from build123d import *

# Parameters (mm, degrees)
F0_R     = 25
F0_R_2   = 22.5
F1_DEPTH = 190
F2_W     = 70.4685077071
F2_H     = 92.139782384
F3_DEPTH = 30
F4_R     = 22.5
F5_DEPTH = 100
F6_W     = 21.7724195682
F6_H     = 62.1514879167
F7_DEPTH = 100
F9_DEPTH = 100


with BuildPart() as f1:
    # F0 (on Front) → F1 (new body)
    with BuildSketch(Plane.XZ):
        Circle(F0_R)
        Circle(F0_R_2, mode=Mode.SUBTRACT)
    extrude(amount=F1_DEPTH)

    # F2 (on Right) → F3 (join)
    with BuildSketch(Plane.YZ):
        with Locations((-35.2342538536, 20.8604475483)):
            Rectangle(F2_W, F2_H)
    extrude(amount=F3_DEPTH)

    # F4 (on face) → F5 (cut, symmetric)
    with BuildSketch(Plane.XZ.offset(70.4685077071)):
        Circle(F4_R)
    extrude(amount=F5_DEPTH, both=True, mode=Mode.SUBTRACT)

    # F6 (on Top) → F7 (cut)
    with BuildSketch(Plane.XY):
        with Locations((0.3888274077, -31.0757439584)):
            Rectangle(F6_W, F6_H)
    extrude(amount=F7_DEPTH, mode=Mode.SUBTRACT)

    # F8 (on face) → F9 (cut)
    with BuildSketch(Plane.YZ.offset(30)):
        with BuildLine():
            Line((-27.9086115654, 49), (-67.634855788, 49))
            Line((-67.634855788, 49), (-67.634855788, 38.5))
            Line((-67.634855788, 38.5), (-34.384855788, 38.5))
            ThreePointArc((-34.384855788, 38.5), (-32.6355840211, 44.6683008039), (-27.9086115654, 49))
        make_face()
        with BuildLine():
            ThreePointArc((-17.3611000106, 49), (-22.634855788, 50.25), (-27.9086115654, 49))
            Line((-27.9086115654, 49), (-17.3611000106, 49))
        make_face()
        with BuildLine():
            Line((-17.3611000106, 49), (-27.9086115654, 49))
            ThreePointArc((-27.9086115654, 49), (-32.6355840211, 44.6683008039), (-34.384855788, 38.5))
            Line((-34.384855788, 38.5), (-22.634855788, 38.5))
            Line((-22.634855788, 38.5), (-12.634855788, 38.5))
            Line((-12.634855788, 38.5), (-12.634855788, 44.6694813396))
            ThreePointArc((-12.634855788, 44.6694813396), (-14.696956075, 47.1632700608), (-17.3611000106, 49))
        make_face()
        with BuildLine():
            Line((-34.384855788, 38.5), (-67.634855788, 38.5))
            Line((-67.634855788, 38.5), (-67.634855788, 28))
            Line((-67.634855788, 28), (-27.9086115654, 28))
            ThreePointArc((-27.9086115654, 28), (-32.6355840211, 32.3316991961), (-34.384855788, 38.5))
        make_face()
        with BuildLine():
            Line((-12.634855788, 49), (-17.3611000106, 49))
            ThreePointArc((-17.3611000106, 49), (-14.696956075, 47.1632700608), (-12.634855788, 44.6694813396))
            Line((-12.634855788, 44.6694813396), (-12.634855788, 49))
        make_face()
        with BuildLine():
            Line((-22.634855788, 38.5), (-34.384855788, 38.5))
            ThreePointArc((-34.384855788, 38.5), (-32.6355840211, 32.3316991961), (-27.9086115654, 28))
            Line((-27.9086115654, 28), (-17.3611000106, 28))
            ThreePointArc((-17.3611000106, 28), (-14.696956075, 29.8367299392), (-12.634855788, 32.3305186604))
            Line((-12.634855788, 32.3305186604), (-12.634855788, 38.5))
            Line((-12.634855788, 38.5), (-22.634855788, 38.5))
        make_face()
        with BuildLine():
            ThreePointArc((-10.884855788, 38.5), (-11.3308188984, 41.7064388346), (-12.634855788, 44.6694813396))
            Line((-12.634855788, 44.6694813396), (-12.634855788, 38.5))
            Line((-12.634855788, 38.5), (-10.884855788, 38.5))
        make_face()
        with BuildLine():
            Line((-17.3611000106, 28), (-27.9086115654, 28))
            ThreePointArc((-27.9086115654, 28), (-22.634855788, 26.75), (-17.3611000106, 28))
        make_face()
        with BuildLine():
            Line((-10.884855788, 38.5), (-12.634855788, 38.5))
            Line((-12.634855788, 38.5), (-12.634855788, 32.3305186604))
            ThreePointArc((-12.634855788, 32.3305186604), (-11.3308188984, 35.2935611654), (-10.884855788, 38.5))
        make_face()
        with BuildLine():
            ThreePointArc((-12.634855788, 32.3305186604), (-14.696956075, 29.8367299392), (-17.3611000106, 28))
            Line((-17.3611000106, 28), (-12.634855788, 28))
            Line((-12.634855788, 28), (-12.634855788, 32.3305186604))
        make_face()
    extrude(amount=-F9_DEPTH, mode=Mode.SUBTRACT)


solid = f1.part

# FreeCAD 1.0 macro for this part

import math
import FreeCAD as App
import Part
import Sketcher
Q = App.Units.Quantity


def add_polygon(sketch, points):
    """Adds a closed chain of lines whose ends are joined by coincident constraints."""
    first, n = sketch.GeometryCount, len(points)
    for a, b in zip(points, points[1:] + points[:1]):
        sketch.addGeometry(Part.LineSegment(App.Vector(*a, 0), App.Vector(*b, 0)), False)
    for i in range(n):
        sketch.addConstraint(Sketcher.Constraint("Coincident", first + i, 2, first + (i + 1) % n, 1))

doc = App.newDocument("Part")
params = doc.addObject("Spreadsheet::Sheet", "Params")
for row, (alias, value) in enumerate([
    ("sketch1_diameter", "50 mm"),
    ("sketch1_diameter2", "45 mm"),
    ("pad1_length", "190 mm"),
    ("pad2_length", "30 mm"),
    ("sketch3_diameter", "45 mm"),
    ("pocket1_length", "200 mm"),
    ("pocket2_length", "100 mm"),
    ("sketch5_height", "21 mm"),
    ("sketch5_radius", "11.75 mm"),
    ("pocket3_length", "100 mm"),
], start=1):
    params.set(f"A{row}", alias)
    params.set(f"B{row}", "=" + value)
    params.setAlias(f"B{row}", alias)

body = doc.addObject("PartDesign::Body", "Body")

sketch1 = body.newObject("Sketcher::SketchObject", "Sketch")
sketch1.AttachmentSupport = (doc.getObject("XZ_Plane"), [""])
sketch1.MapMode = "FlatFace"
sketch1.addGeometry(Part.Circle(App.Vector(0, 0, 0), App.Vector(0, 0, 1), 25), False)
sketch1.addGeometry(Part.Circle(App.Vector(0, 0, 0), App.Vector(0, 0, 1), 22), False)
sketch1.addConstraint(Sketcher.Constraint("Coincident", 0, 3, -1, 1))
sketch1.addConstraint(Sketcher.Constraint("Coincident", 1, 3, -1, 1))
sketch1.addConstraint(Sketcher.Constraint("Diameter", 0, Q("50 mm")))
sketch1.addConstraint(Sketcher.Constraint("Diameter", 1, Q("45 mm")))
sketch1.setExpression("Constraints[2]", "Params.sketch1_diameter")
sketch1.setExpression("Constraints[3]", "Params.sketch1_diameter2")
pad1 = body.newObject("PartDesign::Pad", "Pad")
pad1.Profile = sketch1
pad1.setExpression("Length", "Params.pad1_length")

sketch2 = body.newObject("Sketcher::SketchObject", "Sketch001")
sketch2.AttachmentSupport = (doc.getObject("YZ_Plane"), [""])
sketch2.MapMode = "FlatFace"
add_polygon(sketch2, [(-70, 67), (-70, -25), (0, -25), (0, 67)])
sketch2.addConstraint(Sketcher.Constraint("Vertical", 0))
sketch2.addConstraint(Sketcher.Constraint("Horizontal", 1))
sketch2.addConstraint(Sketcher.Constraint("Vertical", 2))
sketch2.addConstraint(Sketcher.Constraint("Horizontal", 3))
sketch2.addConstraint(Sketcher.Constraint("PointOnObject", 1, 2, -2))
sketch2.addConstraint(Sketcher.Constraint("DistanceX", 1, 1, 1, 2, Q("70.468508 mm")))
sketch2.addConstraint(Sketcher.Constraint("DistanceY", 0, 2, 0, 1, Q("92.139782 mm")))
sketch2.addConstraint(Sketcher.Constraint("DistanceY", -1, 1, 2, 2, Q("66.930339 mm")))
pad2 = body.newObject("PartDesign::Pad", "Pad001")
pad2.Profile = sketch2
pad2.setExpression("Length", "Params.pad2_length")

sketch3 = body.newObject("Sketcher::SketchObject", "Sketch002")
sketch3.AttachmentSupport = (doc.getObject("XZ_Plane"), [""])
sketch3.MapMode = "FlatFace"
sketch3.AttachmentOffset = App.Placement(App.Vector(0, 0, 70.468508), App.Rotation())
sketch3.addGeometry(Part.Circle(App.Vector(0, 0, 0), App.Vector(0, 0, 1), 22), False)
sketch3.addConstraint(Sketcher.Constraint("Coincident", 0, 3, -1, 1))
sketch3.addConstraint(Sketcher.Constraint("Diameter", 0, Q("45 mm")))
sketch3.setExpression("Constraints[1]", "Params.sketch3_diameter")
pocket1 = body.newObject("PartDesign::Pocket", "Pocket")
pocket1.Profile = sketch3
pocket1.setExpression("Length", "Params.pocket1_length")
pocket1.Midplane = True

sketch4 = body.newObject("Sketcher::SketchObject", "Sketch003")
sketch4.AttachmentSupport = (doc.getObject("XY_Plane"), [""])
sketch4.MapMode = "FlatFace"
add_polygon(sketch4, [(-10, 0), (-10, -62), (11, -62), (11, 0)])
sketch4.addConstraint(Sketcher.Constraint("Vertical", 0))
sketch4.addConstraint(Sketcher.Constraint("Horizontal", 1))
sketch4.addConstraint(Sketcher.Constraint("Vertical", 2))
sketch4.addConstraint(Sketcher.Constraint("Horizontal", 3))
sketch4.addConstraint(Sketcher.Constraint("PointOnObject", 2, 2, -1))
sketch4.addConstraint(Sketcher.Constraint("DistanceX", 1, 1, 1, 2, Q("21.77242 mm")))
sketch4.addConstraint(Sketcher.Constraint("DistanceY", 0, 2, 0, 1, Q("62.151488 mm")))
sketch4.addConstraint(Sketcher.Constraint("DistanceX", 0, 2, -1, 1, Q("10.497382 mm")))
pocket2 = body.newObject("PartDesign::Pocket", "Pocket001")
pocket2.Profile = sketch4
pocket2.setExpression("Length", "Params.pocket2_length")
pocket2.Reversed = True

sketch5 = body.newObject("Sketcher::SketchObject", "Sketch004")
sketch5.AttachmentSupport = (doc.getObject("YZ_Plane"), [""])
sketch5.MapMode = "FlatFace"
sketch5.AttachmentOffset = App.Placement(App.Vector(0, 0, 30), App.Rotation())
sketch5.addGeometry(Part.LineSegment(App.Vector(-27.9, 49, 0), App.Vector(-67.6, 49, 0)), False)
sketch5.addGeometry(Part.LineSegment(App.Vector(-67.6, 49, 0), App.Vector(-67.6, 28, 0)), False)
sketch5.addGeometry(Part.LineSegment(App.Vector(-67.6, 28, 0), App.Vector(-27.9, 28, 0)), False)
sketch5.addGeometry(Part.ArcOfCircle(Part.Circle(App.Vector(-22.6, 38.5, 0), App.Vector(0, 0, 1), 11.8), math.radians(-117), math.radians(-63)), False)
sketch5.addGeometry(Part.LineSegment(App.Vector(-17.4, 28, 0), App.Vector(-12.6, 28, 0)), False)
sketch5.addGeometry(Part.LineSegment(App.Vector(-12.6, 28, 0), App.Vector(-12.6, 32.3, 0)), False)
sketch5.addGeometry(Part.ArcOfCircle(Part.Circle(App.Vector(-22.6, 38.5, 0), App.Vector(0, 0, 1), 11.7), math.radians(-32), math.radians(0)), False)
sketch5.addGeometry(Part.ArcOfCircle(Part.Circle(App.Vector(-22.6, 38.5, 0), App.Vector(0, 0, 1), 11.7), math.radians(0), math.radians(32)), False)
sketch5.addGeometry(Part.LineSegment(App.Vector(-12.6, 44.7, 0), App.Vector(-12.6, 49, 0)), False)
sketch5.addGeometry(Part.LineSegment(App.Vector(-12.6, 49, 0), App.Vector(-17.4, 49, 0)), False)
sketch5.addGeometry(Part.ArcOfCircle(Part.Circle(App.Vector(-22.6, 38.5, 0), App.Vector(0, 0, 1), 11.8), math.radians(63), math.radians(117)), False)
sketch5.addConstraint(Sketcher.Constraint("Coincident", 0, 2, 1, 1))
sketch5.addConstraint(Sketcher.Constraint("Coincident", 1, 2, 2, 1))
sketch5.addConstraint(Sketcher.Constraint("Coincident", 2, 2, 3, 1))
sketch5.addConstraint(Sketcher.Constraint("Coincident", 3, 2, 4, 1))
sketch5.addConstraint(Sketcher.Constraint("Coincident", 4, 2, 5, 1))
sketch5.addConstraint(Sketcher.Constraint("Coincident", 5, 2, 6, 1))
sketch5.addConstraint(Sketcher.Constraint("Tangent", 6, 2, 7, 1))
sketch5.addConstraint(Sketcher.Constraint("Coincident", 7, 2, 8, 1))
sketch5.addConstraint(Sketcher.Constraint("Coincident", 8, 2, 9, 1))
sketch5.addConstraint(Sketcher.Constraint("Coincident", 9, 2, 10, 1))
sketch5.addConstraint(Sketcher.Constraint("Coincident", 10, 2, 0, 1))
sketch5.addConstraint(Sketcher.Constraint("Horizontal", 0))
sketch5.addConstraint(Sketcher.Constraint("Vertical", 1))
sketch5.addConstraint(Sketcher.Constraint("Horizontal", 2))
sketch5.addConstraint(Sketcher.Constraint("Horizontal", 4))
sketch5.addConstraint(Sketcher.Constraint("Vertical", 5))
sketch5.addConstraint(Sketcher.Constraint("Vertical", 8))
sketch5.addConstraint(Sketcher.Constraint("Horizontal", 9))
sketch5.addConstraint(Sketcher.Constraint("Coincident", 6, 3, 3, 3))
sketch5.addConstraint(Sketcher.Constraint("Coincident", 10, 3, 3, 3))
sketch5.addConstraint(Sketcher.Constraint("Equal", 3, 6))
sketch5.addConstraint(Sketcher.Constraint("Equal", 6, 7))
sketch5.addConstraint(Sketcher.Constraint("Equal", 7, 10))
sketch5.addConstraint(Sketcher.Constraint("Horizontal", 2, 2, 3, 2))
sketch5.addConstraint(Sketcher.Constraint("Horizontal", 10, 3, 6, 2))
sketch5.addConstraint(Sketcher.Constraint("Horizontal", 0, 2, 8, 2))
sketch5.addConstraint(Sketcher.Constraint("Vertical", 5, 2, 7, 2))
sketch5.addConstraint(Sketcher.Constraint("Vertical", 3, 2, 9, 2))
sketch5.addConstraint(Sketcher.Constraint("DistanceY", 1, 2, 1, 1, Q("21 mm")))
sketch5.addConstraint(Sketcher.Constraint("Radius", 3, Q("11.75 mm")))
sketch5.addConstraint(Sketcher.Constraint("DistanceY", -1, 1, 0, 2, Q("49 mm")))
sketch5.addConstraint(Sketcher.Constraint("DistanceX", 0, 2, 3, 3, Q("45 mm")))
sketch5.addConstraint(Sketcher.Constraint("DistanceX", 6, 3, 4, 2, Q("10 mm")))
sketch5.addConstraint(Sketcher.Constraint("DistanceX", 3, 2, -1, 1, Q("17.3611 mm")))
sketch5.setExpression("Constraints[28]", "Params.sketch5_height")
sketch5.setExpression("Constraints[29]", "Params.sketch5_radius")
pocket3 = body.newObject("PartDesign::Pocket", "Pocket002")
pocket3.Profile = sketch5
pocket3.setExpression("Length", "Params.pocket3_length")

doc.recompute()
